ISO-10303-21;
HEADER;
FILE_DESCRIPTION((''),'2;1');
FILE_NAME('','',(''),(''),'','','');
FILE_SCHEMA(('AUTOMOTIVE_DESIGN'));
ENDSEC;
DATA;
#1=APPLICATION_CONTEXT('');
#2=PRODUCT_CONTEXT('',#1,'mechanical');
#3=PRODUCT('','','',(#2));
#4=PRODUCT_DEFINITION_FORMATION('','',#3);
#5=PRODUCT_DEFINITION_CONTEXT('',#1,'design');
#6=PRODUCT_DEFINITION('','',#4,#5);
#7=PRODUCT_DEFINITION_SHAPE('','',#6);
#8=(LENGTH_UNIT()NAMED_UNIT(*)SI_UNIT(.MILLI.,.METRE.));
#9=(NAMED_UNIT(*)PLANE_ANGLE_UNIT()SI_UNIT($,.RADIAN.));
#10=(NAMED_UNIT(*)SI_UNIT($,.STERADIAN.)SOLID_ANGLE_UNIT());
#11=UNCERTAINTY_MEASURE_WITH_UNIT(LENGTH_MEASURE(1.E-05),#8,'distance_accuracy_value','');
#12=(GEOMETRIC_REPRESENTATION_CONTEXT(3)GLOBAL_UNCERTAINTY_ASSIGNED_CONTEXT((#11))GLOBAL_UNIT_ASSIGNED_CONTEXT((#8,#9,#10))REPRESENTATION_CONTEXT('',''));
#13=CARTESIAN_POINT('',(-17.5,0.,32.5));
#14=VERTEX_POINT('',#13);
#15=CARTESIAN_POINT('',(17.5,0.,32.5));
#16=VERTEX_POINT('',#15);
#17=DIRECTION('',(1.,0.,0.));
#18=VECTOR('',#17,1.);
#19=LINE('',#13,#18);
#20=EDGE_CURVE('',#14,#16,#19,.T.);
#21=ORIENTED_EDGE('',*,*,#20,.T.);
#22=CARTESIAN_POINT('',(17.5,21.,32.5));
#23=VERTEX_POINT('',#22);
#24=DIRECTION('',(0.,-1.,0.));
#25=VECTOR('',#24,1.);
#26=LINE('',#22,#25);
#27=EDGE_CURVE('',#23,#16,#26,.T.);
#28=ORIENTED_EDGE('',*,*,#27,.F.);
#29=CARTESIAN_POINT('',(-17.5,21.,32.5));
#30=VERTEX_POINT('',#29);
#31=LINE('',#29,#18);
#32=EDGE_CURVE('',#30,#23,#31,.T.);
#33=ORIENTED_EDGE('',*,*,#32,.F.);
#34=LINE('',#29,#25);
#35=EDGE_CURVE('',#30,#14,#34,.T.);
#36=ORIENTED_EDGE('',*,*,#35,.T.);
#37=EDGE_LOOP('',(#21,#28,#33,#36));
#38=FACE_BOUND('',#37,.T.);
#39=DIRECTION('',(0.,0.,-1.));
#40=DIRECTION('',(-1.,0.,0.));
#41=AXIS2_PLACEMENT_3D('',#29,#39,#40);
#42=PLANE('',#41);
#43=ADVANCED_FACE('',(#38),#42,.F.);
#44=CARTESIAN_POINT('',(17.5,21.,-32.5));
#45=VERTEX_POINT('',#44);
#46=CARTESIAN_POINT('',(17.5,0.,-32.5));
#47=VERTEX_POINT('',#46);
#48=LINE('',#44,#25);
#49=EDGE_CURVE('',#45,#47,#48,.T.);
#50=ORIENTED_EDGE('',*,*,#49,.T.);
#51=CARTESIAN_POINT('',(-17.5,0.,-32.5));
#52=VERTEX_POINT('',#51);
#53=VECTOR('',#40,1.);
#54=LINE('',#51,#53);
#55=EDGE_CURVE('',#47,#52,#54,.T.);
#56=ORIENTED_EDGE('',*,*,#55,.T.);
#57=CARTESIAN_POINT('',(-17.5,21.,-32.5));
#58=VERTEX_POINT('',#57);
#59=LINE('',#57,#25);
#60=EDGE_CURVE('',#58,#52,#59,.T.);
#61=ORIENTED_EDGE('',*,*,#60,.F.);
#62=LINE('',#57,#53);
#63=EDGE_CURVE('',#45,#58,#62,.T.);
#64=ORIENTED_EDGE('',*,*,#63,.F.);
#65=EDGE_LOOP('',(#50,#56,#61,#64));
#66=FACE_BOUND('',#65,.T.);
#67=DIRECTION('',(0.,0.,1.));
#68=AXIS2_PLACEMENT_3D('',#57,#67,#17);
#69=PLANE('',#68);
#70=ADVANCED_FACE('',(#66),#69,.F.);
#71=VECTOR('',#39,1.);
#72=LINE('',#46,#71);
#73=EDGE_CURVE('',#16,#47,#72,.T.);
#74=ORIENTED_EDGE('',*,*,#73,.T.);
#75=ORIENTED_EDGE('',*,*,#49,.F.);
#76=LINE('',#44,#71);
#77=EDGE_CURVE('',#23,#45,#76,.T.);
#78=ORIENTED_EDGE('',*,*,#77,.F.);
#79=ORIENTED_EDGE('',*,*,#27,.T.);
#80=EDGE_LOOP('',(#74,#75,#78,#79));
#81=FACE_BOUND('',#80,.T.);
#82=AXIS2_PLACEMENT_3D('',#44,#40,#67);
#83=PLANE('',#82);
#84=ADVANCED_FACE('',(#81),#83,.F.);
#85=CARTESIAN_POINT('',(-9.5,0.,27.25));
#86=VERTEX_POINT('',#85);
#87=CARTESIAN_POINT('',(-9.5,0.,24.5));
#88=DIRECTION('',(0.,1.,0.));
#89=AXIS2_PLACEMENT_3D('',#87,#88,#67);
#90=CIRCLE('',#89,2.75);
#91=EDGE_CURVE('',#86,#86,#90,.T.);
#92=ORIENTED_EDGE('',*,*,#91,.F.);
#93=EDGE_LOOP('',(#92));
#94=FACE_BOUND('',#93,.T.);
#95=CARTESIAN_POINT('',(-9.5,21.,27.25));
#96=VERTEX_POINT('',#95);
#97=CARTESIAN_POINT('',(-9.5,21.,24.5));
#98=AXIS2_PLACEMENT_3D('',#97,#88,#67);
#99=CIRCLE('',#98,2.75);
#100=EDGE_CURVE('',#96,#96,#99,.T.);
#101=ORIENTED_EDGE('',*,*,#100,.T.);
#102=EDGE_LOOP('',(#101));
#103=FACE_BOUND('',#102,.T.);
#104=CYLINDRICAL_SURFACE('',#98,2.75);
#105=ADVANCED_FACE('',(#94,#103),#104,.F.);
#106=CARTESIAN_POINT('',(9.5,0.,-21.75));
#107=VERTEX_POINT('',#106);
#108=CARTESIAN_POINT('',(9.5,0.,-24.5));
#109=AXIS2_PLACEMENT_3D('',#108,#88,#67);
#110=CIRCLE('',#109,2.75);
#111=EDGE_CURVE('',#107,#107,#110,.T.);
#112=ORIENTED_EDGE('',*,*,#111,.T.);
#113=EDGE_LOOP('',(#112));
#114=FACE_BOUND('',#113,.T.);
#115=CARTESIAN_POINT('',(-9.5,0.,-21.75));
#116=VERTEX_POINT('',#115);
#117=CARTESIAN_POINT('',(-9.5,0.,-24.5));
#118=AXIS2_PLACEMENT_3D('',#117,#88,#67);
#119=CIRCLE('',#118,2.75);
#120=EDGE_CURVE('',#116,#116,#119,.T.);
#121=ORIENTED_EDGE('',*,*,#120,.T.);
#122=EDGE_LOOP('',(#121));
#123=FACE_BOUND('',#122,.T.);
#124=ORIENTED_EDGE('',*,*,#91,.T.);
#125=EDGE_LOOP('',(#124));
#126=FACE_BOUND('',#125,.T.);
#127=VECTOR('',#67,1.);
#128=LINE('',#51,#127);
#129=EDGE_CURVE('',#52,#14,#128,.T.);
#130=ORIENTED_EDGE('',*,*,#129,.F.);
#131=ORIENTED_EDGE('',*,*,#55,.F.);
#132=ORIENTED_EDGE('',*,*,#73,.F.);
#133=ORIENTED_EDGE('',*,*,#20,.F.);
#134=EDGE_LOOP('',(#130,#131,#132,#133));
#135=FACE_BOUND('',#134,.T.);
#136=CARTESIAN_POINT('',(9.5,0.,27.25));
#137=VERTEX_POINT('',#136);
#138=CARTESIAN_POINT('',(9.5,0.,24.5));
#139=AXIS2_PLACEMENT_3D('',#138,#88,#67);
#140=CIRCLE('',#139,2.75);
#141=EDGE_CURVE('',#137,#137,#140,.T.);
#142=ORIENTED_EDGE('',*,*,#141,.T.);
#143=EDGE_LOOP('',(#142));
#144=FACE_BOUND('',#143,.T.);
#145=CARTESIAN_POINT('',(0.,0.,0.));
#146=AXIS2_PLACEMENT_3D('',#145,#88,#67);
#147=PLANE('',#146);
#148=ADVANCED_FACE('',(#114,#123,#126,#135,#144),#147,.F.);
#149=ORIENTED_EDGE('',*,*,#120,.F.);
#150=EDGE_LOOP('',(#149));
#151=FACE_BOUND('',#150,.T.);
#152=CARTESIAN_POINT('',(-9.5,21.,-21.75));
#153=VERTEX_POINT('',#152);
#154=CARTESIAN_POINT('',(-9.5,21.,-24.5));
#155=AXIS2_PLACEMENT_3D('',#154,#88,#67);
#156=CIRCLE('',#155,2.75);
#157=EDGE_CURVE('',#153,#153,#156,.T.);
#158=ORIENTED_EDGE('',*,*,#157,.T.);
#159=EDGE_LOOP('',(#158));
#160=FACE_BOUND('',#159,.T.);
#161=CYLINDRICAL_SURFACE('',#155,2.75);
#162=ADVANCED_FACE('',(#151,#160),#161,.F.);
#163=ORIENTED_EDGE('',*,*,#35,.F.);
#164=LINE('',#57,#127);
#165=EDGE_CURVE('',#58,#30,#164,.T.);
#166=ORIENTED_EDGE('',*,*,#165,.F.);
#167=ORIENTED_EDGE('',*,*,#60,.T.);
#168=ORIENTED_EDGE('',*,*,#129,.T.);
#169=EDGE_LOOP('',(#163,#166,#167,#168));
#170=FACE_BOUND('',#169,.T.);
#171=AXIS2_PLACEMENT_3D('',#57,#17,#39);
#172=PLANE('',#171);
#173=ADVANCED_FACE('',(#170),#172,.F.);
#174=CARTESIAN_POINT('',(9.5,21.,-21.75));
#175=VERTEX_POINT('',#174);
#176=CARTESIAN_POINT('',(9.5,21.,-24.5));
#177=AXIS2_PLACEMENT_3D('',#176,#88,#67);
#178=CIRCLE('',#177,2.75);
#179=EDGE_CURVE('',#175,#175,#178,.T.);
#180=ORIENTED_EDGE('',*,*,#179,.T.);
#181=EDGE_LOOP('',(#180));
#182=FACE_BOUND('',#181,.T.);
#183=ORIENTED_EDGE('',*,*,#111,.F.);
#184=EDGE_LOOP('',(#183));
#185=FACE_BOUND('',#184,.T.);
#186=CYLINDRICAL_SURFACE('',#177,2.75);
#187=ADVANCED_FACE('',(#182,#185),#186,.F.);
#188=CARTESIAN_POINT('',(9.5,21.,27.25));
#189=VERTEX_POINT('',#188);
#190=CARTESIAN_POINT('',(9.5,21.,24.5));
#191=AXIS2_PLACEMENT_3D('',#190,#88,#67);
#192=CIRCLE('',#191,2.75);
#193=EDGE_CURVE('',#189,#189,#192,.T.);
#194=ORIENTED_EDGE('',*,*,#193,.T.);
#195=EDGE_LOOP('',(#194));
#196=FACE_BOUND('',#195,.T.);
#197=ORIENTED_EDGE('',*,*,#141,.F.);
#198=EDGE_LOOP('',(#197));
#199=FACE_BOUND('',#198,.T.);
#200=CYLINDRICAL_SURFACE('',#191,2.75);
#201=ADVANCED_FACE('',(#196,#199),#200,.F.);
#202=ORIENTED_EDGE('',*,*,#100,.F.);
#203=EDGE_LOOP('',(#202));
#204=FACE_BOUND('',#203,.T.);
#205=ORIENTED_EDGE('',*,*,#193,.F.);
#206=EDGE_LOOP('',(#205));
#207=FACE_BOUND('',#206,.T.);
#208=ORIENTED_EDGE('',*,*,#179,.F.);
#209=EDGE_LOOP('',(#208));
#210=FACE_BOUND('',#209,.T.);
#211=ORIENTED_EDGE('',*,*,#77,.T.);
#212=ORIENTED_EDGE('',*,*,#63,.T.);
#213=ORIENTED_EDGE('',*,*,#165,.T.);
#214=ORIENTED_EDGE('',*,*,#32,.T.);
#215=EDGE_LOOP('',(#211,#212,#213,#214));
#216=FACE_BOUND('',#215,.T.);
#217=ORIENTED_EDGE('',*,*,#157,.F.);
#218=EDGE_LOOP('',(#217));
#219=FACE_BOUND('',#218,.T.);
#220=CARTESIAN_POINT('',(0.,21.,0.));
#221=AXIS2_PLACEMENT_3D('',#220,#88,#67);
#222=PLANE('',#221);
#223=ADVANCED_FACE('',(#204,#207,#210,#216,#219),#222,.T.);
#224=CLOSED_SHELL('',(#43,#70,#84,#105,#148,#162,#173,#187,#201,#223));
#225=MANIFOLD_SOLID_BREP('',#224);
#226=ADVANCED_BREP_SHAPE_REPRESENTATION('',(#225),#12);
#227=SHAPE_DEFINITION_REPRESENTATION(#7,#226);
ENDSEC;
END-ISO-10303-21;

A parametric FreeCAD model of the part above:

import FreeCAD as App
import Part
import Sketcher

V = App.Vector

doc = App.newDocument("Part")
body = doc.addObject("PartDesign::Body", "Body")

# Sketch on XZ plane
sketch1 = body.newObject("Sketcher::SketchObject", "Sketch")
sketch1.AttachmentSupport = (doc.getObject("XZ_Plane"), [""])
sketch1.MapMode = "FlatFace"
sketch1.addGeometry([
    Part.LineSegment(V(-18, -32, 0), V(-18, 32, 0)),
    Part.LineSegment(V(-18, 32, 0), V(18, 32, 0)),
    Part.LineSegment(V(18, 32, 0), V(18, -32, 0)),
    Part.LineSegment(V(18, -32, 0), V(-18, -32, 0)),
], False)
sketch1.addConstraint([
    Sketcher.Constraint("Coincident", 0, 2, 1, 1),
    Sketcher.Constraint("Coincident", 1, 2, 2, 1),
    Sketcher.Constraint("Coincident", 2, 2, 3, 1),
    Sketcher.Constraint("Coincident", 3, 2, 0, 1),
    Sketcher.Constraint("Vertical", 0),
    Sketcher.Constraint("Horizontal", 1),
    Sketcher.Constraint("Vertical", 2),
    Sketcher.Constraint("Horizontal", 3),
    Sketcher.Constraint("Symmetric", 0, 2, 2, 2, -1, 1),
    Sketcher.Constraint("DistanceX", 1, 1, 1, 2, 35.0),
    Sketcher.Constraint("DistanceY", 0, 1, 0, 2, 65.0),
])
pad1 = body.newObject("PartDesign::Pad", "Pad")
pad1.Profile = sketch1
pad1.Length = 21
pad1.Reversed = True

# Sketch on XZ plane
sketch2 = body.newObject("Sketcher::SketchObject", "Sketch001")
sketch2.AttachmentSupport = (doc.getObject("XZ_Plane"), [""])
sketch2.MapMode = "FlatFace"
sketch2.AttachmentOffset = App.Placement(V(0, 0, -21), App.Rotation())
sketch2.addGeometry([
    Part.Circle(V(9.5, -24.5, 0), V(0, 0, 1), 2.8),
    Part.Circle(V(-9.5, -24.5, 0), V(0, 0, 1), 2.8),
    Part.Circle(V(-9.5, 24.5, 0), V(0, 0, 1), 2.8),
    Part.Circle(V(9.5, 24.5, 0), V(0, 0, 1), 2.8),
], False)
sketch2.addConstraint([
    Sketcher.Constraint("Equal", 0, 1),
    Sketcher.Constraint("Equal", 1, 2),
    Sketcher.Constraint("Equal", 2, 3),
    Sketcher.Constraint("Symmetric", 0, 3, 2, 3, -1, 1),
    Sketcher.Constraint("Symmetric", 1, 3, 3, 3, -1, 1),
    Sketcher.Constraint("Symmetric", 0, 3, 1, 3, -2),
    Sketcher.Constraint("Diameter", 0, 5.5),
    Sketcher.Constraint("DistanceX", 1, 3, 0, 3, 19.0),
    Sketcher.Constraint("DistanceY", 1, 3, 2, 3, 49.0),
])
doc.recompute()
hole = body.newObject("PartDesign::Hole", "Hole")
hole.Profile = sketch2
hole.ThreadType = "None"
hole.Diameter = 5.5
hole.DepthType = "ThroughAll"
hole.Reversed = True

doc.recompute()
